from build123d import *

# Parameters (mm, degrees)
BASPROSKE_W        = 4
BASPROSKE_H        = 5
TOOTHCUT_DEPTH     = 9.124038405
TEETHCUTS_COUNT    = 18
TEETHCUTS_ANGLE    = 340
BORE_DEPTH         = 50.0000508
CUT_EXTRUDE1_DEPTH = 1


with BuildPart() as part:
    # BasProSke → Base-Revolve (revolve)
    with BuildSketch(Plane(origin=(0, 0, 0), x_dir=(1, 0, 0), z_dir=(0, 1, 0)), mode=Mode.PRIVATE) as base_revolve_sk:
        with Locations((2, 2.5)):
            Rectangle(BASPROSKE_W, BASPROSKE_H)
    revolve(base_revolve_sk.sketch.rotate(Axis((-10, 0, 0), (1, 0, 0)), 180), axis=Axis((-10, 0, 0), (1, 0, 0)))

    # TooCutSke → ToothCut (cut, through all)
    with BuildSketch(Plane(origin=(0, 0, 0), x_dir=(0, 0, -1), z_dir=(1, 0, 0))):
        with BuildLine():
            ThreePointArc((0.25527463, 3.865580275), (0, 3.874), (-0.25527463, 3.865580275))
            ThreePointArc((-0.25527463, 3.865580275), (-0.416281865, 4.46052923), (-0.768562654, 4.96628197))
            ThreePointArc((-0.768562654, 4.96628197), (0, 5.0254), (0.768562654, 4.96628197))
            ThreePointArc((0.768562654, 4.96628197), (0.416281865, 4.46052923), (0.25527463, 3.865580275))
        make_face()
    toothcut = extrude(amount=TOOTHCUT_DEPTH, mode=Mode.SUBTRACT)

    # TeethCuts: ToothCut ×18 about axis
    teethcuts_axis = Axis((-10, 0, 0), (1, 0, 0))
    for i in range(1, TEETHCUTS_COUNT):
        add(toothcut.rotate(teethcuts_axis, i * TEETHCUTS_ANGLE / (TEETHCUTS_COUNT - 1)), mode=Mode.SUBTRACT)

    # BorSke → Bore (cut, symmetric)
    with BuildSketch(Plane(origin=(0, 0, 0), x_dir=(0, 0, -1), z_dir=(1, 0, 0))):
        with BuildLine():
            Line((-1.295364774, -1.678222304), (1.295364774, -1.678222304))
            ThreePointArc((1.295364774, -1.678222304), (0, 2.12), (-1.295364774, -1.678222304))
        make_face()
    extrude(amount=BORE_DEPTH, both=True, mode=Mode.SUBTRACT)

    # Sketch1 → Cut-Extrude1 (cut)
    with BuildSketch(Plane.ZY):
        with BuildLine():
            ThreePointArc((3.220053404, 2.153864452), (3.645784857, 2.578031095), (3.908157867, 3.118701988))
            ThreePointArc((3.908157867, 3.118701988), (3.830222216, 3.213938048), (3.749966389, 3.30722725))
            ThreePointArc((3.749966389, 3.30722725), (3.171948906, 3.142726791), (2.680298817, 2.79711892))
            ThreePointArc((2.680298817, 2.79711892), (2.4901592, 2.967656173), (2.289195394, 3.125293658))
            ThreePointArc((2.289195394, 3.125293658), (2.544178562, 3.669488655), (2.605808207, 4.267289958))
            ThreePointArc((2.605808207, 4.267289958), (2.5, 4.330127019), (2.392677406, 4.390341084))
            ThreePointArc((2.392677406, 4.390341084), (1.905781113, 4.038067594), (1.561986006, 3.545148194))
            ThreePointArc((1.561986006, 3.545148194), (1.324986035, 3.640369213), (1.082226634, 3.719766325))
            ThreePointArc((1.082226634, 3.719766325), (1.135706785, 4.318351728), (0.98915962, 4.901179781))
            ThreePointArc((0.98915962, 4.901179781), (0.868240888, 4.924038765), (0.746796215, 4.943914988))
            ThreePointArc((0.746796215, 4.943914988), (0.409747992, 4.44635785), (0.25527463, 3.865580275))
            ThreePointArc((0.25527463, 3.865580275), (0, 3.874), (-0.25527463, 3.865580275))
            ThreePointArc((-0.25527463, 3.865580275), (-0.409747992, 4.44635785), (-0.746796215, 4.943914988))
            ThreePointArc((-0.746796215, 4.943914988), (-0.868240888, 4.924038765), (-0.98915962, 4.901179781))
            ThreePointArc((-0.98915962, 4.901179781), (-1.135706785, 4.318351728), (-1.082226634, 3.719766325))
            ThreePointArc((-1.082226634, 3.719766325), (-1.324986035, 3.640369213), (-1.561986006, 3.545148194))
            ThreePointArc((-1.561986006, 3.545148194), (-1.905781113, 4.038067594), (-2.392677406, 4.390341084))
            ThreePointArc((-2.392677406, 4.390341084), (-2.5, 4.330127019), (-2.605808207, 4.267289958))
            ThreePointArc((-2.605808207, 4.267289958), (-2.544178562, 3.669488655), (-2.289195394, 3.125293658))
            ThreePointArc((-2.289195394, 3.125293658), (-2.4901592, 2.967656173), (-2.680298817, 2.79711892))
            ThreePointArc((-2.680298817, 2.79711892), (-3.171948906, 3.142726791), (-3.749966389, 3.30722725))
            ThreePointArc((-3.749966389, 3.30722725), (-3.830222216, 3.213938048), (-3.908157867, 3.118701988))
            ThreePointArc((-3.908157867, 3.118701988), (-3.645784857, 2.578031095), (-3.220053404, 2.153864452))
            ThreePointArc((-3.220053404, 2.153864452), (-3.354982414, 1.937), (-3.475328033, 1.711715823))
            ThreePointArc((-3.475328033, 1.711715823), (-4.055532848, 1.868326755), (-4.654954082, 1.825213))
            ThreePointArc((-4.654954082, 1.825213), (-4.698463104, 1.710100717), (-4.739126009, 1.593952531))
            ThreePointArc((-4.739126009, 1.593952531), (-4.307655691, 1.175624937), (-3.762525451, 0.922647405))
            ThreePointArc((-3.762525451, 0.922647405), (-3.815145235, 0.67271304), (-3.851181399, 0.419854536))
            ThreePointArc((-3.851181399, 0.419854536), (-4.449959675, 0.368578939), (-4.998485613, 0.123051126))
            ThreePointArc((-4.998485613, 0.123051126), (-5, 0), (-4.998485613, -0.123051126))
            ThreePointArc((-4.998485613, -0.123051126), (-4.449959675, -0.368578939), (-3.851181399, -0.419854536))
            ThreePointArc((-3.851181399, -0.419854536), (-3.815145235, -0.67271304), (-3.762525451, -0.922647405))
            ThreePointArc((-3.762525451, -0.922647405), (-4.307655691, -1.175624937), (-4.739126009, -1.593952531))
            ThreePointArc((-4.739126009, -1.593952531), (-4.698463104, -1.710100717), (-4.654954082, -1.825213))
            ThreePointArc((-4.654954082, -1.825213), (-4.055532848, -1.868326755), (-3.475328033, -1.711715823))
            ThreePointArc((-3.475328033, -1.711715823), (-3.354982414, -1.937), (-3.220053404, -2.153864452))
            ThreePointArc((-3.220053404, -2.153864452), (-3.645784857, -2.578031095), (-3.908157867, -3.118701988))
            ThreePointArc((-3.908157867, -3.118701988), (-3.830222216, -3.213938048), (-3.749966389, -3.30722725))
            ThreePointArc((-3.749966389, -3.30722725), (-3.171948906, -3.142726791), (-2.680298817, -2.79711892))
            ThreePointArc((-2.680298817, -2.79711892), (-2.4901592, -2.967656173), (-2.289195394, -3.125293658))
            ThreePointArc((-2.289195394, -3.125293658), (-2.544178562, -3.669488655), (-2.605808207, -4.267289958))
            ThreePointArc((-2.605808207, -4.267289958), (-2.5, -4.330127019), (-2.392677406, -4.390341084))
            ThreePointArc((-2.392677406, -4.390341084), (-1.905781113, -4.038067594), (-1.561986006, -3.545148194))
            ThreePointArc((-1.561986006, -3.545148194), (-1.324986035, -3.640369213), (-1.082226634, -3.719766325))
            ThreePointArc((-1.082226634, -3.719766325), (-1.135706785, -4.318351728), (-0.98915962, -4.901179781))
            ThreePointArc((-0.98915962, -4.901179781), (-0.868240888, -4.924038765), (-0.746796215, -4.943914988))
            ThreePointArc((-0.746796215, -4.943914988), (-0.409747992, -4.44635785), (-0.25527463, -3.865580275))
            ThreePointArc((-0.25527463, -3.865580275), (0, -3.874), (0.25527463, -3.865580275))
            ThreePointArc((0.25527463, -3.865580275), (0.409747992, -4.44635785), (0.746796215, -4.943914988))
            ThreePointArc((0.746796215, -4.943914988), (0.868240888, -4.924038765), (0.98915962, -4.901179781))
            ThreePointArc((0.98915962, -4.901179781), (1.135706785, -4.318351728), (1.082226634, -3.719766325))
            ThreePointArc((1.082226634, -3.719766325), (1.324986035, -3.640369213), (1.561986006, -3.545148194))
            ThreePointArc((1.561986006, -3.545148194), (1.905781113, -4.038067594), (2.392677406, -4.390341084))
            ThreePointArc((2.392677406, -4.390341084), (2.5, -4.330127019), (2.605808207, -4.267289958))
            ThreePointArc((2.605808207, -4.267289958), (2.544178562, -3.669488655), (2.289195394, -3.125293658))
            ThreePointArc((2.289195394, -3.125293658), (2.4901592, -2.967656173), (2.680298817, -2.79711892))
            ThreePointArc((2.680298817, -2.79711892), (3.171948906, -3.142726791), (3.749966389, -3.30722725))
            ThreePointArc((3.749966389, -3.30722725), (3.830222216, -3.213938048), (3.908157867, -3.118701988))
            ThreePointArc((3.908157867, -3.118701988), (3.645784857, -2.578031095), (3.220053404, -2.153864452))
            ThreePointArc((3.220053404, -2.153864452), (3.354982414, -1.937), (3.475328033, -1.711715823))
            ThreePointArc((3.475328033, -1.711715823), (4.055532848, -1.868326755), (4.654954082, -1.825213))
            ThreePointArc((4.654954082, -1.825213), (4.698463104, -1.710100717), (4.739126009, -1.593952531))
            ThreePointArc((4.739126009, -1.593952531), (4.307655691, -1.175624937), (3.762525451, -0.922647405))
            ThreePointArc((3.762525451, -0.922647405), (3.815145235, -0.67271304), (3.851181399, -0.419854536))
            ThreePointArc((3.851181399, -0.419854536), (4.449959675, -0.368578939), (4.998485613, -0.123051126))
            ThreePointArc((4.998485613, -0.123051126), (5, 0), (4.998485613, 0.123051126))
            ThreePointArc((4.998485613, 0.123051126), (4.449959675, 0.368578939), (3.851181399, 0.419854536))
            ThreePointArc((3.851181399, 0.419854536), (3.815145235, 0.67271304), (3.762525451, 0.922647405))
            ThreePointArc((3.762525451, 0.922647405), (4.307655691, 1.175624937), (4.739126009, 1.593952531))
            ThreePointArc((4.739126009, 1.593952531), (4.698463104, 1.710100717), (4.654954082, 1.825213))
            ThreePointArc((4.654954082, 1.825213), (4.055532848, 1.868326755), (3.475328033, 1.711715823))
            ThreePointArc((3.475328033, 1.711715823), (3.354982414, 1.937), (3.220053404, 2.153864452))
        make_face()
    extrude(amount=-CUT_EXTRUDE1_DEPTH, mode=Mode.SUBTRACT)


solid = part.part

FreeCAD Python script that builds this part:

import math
import FreeCAD as App
import Part
import Sketcher
Q = App.Units.Quantity

doc = App.newDocument("Part")
params = doc.addObject("Spreadsheet::Sheet", "Params")
for row, (alias, value) in enumerate([
    ("sketch1_width", "4 mm"),
    ("sketch1_height", "5 mm"),
    ("revolution_angle", "360 deg"),
    ("sketch2_radius", "1.8 mm"),
    ("sketch3_radius", "2.12 mm"),
    ("pocket2_length", "100.000102 mm"),
    ("sketch4_radius", "5.000001 mm"),
    ("sketch4_radius2", "1.8 mm"),
    ("pocket3_length", "1 mm"),
], start=1):
    params.set(f"A{row}", alias)
    params.set(f"B{row}", "=" + value)
    params.setAlias(f"B{row}", alias)

body = doc.addObject("PartDesign::Body", "Body")

sketch1 = body.newObject("Sketcher::SketchObject", "Sketch")
sketch1.AttachmentSupport = (doc.getObject("XZ_Plane"), [""])
sketch1.MapMode = "FlatFace"
sketch1.addGeometry([
    Part.LineSegment(App.Vector(0, -5, 0), App.Vector(0, 0, 0)),
    Part.LineSegment(App.Vector(0, 0, 0), App.Vector(4, 0, 0)),
    Part.LineSegment(App.Vector(4, 0, 0), App.Vector(4, -5, 0)),
    Part.LineSegment(App.Vector(4, -5, 0), App.Vector(0, -5, 0)),
], False)
sketch1.addConstraint([
    Sketcher.Constraint("Coincident", 0, 2, 1, 1),
    Sketcher.Constraint("Coincident", 1, 2, 2, 1),
    Sketcher.Constraint("Coincident", 2, 2, 3, 1),
    Sketcher.Constraint("Coincident", 3, 2, 0, 1),
    Sketcher.Constraint("Vertical", 0),
    Sketcher.Constraint("Horizontal", 1),
    Sketcher.Constraint("Vertical", 2),
    Sketcher.Constraint("Horizontal", 3),
    Sketcher.Constraint("Coincident", 0, 2, -1, 1),
    Sketcher.Constraint("DistanceX", 1, 1, 1, 2, Q("4 mm")),
    Sketcher.Constraint("DistanceY", 0, 1, 0, 2, Q("5 mm")),
])
sketch1.setExpression("Constraints[9]", "Params.sketch1_width")
sketch1.setExpression("Constraints[10]", "Params.sketch1_height")
revolution = body.newObject("PartDesign::Revolution", "Revolution")
revolution.Profile = sketch1
revolution.ReferenceAxis = (sketch1, ["H_Axis"])
revolution.setExpression("Angle", "Params.revolution_angle")

sketch2 = body.newObject("Sketcher::SketchObject", "Sketch001")
sketch2.AttachmentSupport = (doc.getObject("YZ_Plane"), [""])
sketch2.MapMode = "FlatFace"
sketch2.addGeometry([
    Part.ArcOfCircle(Part.Circle(App.Vector(0, 0, 0), App.Vector(0, 0, 1), 3.9), math.radians(-3.78), math.radians(3.78)),
    Part.ArcOfCircle(Part.Circle(App.Vector(3.7, -2, 0), App.Vector(0, 0, 1), 1.8), math.radians(45), math.radians(85)),
    Part.ArcOfCircle(Part.Circle(App.Vector(0, 0, 0), App.Vector(0, 0, 1), 5), math.radians(-8.8), math.radians(8.8)),
    Part.ArcOfCircle(Part.Circle(App.Vector(3.7, 2, 0), App.Vector(0, 0, 1), 1.8), math.radians(-85), math.radians(-45)),
], False)
sketch2.addConstraint([
    Sketcher.Constraint("Coincident", 0, 1, 1, 2),
    Sketcher.Constraint("Coincident", 1, 1, 2, 1),
    Sketcher.Constraint("Coincident", 2, 2, 3, 2),
    Sketcher.Constraint("Coincident", 3, 1, 0, 2),
    Sketcher.Constraint("Coincident", 0, 3, -1, 1),
    Sketcher.Constraint("Coincident", 2, 3, -1, 1),
    Sketcher.Constraint("Equal", 1, 3),
    Sketcher.Constraint("Symmetric", 1, 3, 3, 3, -1),
    Sketcher.Constraint("Radius", 1, Q("1.8 mm")),
    Sketcher.Constraint("Radius", 0, Q("3.874 mm")),
    Sketcher.Constraint("Radius", 2, Q("5.0254 mm")),
    Sketcher.Constraint("DistanceX", 0, 1, 1, 1, Q("1.100702 mm")),
    Sketcher.Constraint("DistanceX", -1, 1, 1, 3, Q("3.699789 mm")),
])
sketch2.setExpression("Constraints[8]", "Params.sketch2_radius")
pocket1 = body.newObject("PartDesign::Pocket", "Pocket")
pocket1.Profile = sketch2
pocket1.Type = "ThroughAll"
pocket1.Reversed = True
doc.recompute()

polarpattern = body.newObject("PartDesign::PolarPattern", "PolarPattern")
polarpattern.Originals = [pocket1]
polarpattern.Axis = (doc.getObject("X_Axis"), [""])
polarpattern.Angle = 360
polarpattern.Occurrences = 18
body.Tip = polarpattern

sketch3 = body.newObject("Sketcher::SketchObject", "Sketch002")
sketch3.AttachmentSupport = (doc.getObject("YZ_Plane"), [""])
sketch3.MapMode = "FlatFace"
sketch3.addGeometry([
    Part.LineSegment(App.Vector(-1.7, 1.3, 0), App.Vector(-1.7, -1.3, 0)),
    Part.ArcOfCircle(Part.Circle(App.Vector(0, 0, 0), App.Vector(0, 0, 1), 2.1), math.radians(-142), math.radians(142)),
], False)
sketch3.addConstraint([
    Sketcher.Constraint("Coincident", 0, 1, 1, 2),
    Sketcher.Constraint("Coincident", 1, 1, 0, 2),
    Sketcher.Constraint("Vertical", 0),
    Sketcher.Constraint("Coincident", 1, 3, -1, 1),
    Sketcher.Constraint("Radius", 1, Q("2.12 mm")),
    Sketcher.Constraint("DistanceY", 0, 2, 0, 1, Q("2.59073 mm")),
])
sketch3.setExpression("Constraints[4]", "Params.sketch3_radius")
pocket2 = body.newObject("PartDesign::Pocket", "Pocket001")
pocket2.Profile = sketch3
pocket2.setExpression("Length", "Params.pocket2_length")
pocket2.Midplane = True

sketch4 = body.newObject("Sketcher::SketchObject", "Sketch003")
sketch4.AttachmentSupport = (doc.getObject("YZ_Plane"), [""])
sketch4.MapMode = "FlatFace"
sketch4.addGeometry([
    Part.ArcOfCircle(Part.Circle(App.Vector(3.62, 2.18, 0), App.Vector(0, 0, 1), 1.8), math.radians(106), math.radians(145)),
    Part.ArcOfCircle(Part.Circle(App.Vector(0, 0, 0), App.Vector(0, 0, 1), 5), math.radians(48.59), math.radians(51.41)),
    Part.ArcOfCircle(Part.Circle(App.Vector(1.52, 3.95, 0), App.Vector(0, 0, 1), 1.8), math.radians(-45), math.radians(-6)),
    Part.ArcOfCircle(Part.Circle(App.Vector(0, 0, 0), App.Vector(0, 0, 1), 3.87), math.radians(36.22), math.radians(43.78)),
    Part.ArcOfCircle(Part.Circle(App.Vector(4.15, 0.81, 0), App.Vector(0, 0, 1), 1.8), math.radians(86), math.radians(125)),
    Part.ArcOfCircle(Part.Circle(App.Vector(0, 0, 0), App.Vector(0, 0, 1), 5), math.radians(28.59), math.radians(31.41)),
    Part.ArcOfCircle(Part.Circle(App.Vector(2.78, 3.19, 0), App.Vector(0, 0, 1), 1.8), math.radians(-65), math.radians(-26)),
    Part.ArcOfCircle(Part.Circle(App.Vector(0, 0, 0), App.Vector(0, 0, 1), 3.87), math.radians(16.22), math.radians(23.78)),
    Part.ArcOfCircle(Part.Circle(App.Vector(4.18, -0.66, 0), App.Vector(0, 0, 1), 1.8), math.radians(66), math.radians(105)),
    Part.ArcOfCircle(Part.Circle(App.Vector(0, 0, 0), App.Vector(0, 0, 1), 5), math.radians(8.59), math.radians(11.41)),
    Part.ArcOfCircle(Part.Circle(App.Vector(3.7, 2.05, 0), App.Vector(0, 0, 1), 1.8), math.radians(-85), math.radians(-46)),
    Part.ArcOfCircle(Part.Circle(App.Vector(0, 0, 0), App.Vector(0, 0, 1), 3.87), math.radians(-3.78), math.radians(3.78)),
    Part.ArcOfCircle(Part.Circle(App.Vector(3.7, -2.05, 0), App.Vector(0, 0, 1), 1.8), math.radians(46), math.radians(85)),
    Part.ArcOfCircle(Part.Circle(App.Vector(0, 0, 0), App.Vector(0, 0, 1), 5), math.radians(-11.41), math.radians(-8.59)),
    Part.ArcOfCircle(Part.Circle(App.Vector(4.18, 0.66, 0), App.Vector(0, 0, 1), 1.8), math.radians(-105), math.radians(-66)),
    Part.ArcOfCircle(Part.Circle(App.Vector(0, 0, 0), App.Vector(0, 0, 1), 3.87), math.radians(-23.78), math.radians(-16.22)),
    Part.ArcOfCircle(Part.Circle(App.Vector(2.78, -3.19, 0), App.Vector(0, 0, 1), 1.8), math.radians(26), math.radians(65)),
    Part.ArcOfCircle(Part.Circle(App.Vector(0, 0, 0), App.Vector(0, 0, 1), 5), math.radians(-31.41), math.radians(-28.59)),
    Part.ArcOfCircle(Part.Circle(App.Vector(4.15, -0.81, 0), App.Vector(0, 0, 1), 1.8), math.radians(-125), math.radians(-86)),
    Part.ArcOfCircle(Part.Circle(App.Vector(0, 0, 0), App.Vector(0, 0, 1), 3.87), math.radians(-43.78), math.radians(-36.22)),
    Part.ArcOfCircle(Part.Circle(App.Vector(1.52, -3.95, 0), App.Vector(0, 0, 1), 1.8), math.radians(6), math.radians(45)),
    Part.ArcOfCircle(Part.Circle(App.Vector(0, 0, 0), App.Vector(0, 0, 1), 5), math.radians(-51.41), math.radians(-48.59)),
    Part.ArcOfCircle(Part.Circle(App.Vector(3.62, -2.18, 0), App.Vector(0, 0, 1), 1.8), math.radians(-145), math.radians(-106)),
    Part.ArcOfCircle(Part.Circle(App.Vector(0, 0, 0), App.Vector(0, 0, 1), 3.87), math.radians(-63.78), math.radians(-56.22)),
    Part.ArcOfCircle(Part.Circle(App.Vector(0.08, -4.23, 0), App.Vector(0, 0, 1), 1.8), math.radians(-14), math.radians(25)),
    Part.ArcOfCircle(Part.Circle(App.Vector(0, 0, 0), App.Vector(0, 0, 1), 5), math.radians(-71.41), math.radians(-68.59)),
    Part.ArcOfCircle(Part.Circle(App.Vector(2.66, -3.29, 0), App.Vector(0, 0, 1), 1.8), math.radians(-165), math.radians(-126)),
    Part.ArcOfCircle(Part.Circle(App.Vector(0, 0, 0), App.Vector(0, 0, 1), 3.87), math.radians(-83.78), math.radians(-76.22)),
    Part.ArcOfCircle(Part.Circle(App.Vector(-1.37, -4, 0), App.Vector(0, 0, 1), 1.8), math.radians(-34), math.radians(5)),
    Part.ArcOfCircle(Part.Circle(App.Vector(0, 0, 0), App.Vector(0, 0, 1), 5), math.radians(-91.41), math.radians(-88.59)),
    Part.ArcOfCircle(Part.Circle(App.Vector(1.37, -4, 0), App.Vector(0, 0, 1), 1.8), math.radians(175), math.radians(214)),
    Part.ArcOfCircle(Part.Circle(App.Vector(0, 0, 0), App.Vector(0, 0, 1), 3.87), math.radians(-103.78), math.radians(-96.22)),
    Part.ArcOfCircle(Part.Circle(App.Vector(-2.66, -3.29, 0), App.Vector(0, 0, 1), 1.8), math.radians(-54), math.radians(-15)),
    Part.ArcOfCircle(Part.Circle(App.Vector(0, 0, 0), App.Vector(0, 0, 1), 5), math.radians(-111.41), math.radians(-108.59)),
    Part.ArcOfCircle(Part.Circle(App.Vector(-0.08, -4.23, 0), App.Vector(0, 0, 1), 1.8), math.radians(155), math.radians(194)),
    Part.ArcOfCircle(Part.Circle(App.Vector(0, 0, 0), App.Vector(0, 0, 1), 3.87), math.radians(-123.78), math.radians(-116.22)),
    Part.ArcOfCircle(Part.Circle(App.Vector(-3.62, -2.18, 0), App.Vector(0, 0, 1), 1.8), math.radians(-74), math.radians(-35)),
    Part.ArcOfCircle(Part.Circle(App.Vector(0, 0, 0), App.Vector(0, 0, 1), 5), math.radians(-131.41), math.radians(-128.59)),
    Part.ArcOfCircle(Part.Circle(App.Vector(-1.52, -3.95, 0), App.Vector(0, 0, 1), 1.8), math.radians(135), math.radians(174)),
    Part.ArcOfCircle(Part.Circle(App.Vector(0, 0, 0), App.Vector(0, 0, 1), 3.87), math.radians(-143.78), math.radians(-136.22)),
    Part.ArcOfCircle(Part.Circle(App.Vector(-4.15, -0.81, 0), App.Vector(0, 0, 1), 1.8), math.radians(-94), math.radians(-55)),
    Part.ArcOfCircle(Part.Circle(App.Vector(0, 0, 0), App.Vector(0, 0, 1), 5), math.radians(-151.41), math.radians(-148.59)),
    Part.ArcOfCircle(Part.Circle(App.Vector(-2.78, -3.19, 0), App.Vector(0, 0, 1), 1.8), math.radians(115), math.radians(154)),
    Part.ArcOfCircle(Part.Circle(App.Vector(0, 0, 0), App.Vector(0, 0, 1), 3.87), math.radians(-163.78), math.radians(-156.22)),
    Part.ArcOfCircle(Part.Circle(App.Vector(-4.18, 0.66, 0), App.Vector(0, 0, 1), 1.8), math.radians(-114), math.radians(-75)),
    Part.ArcOfCircle(Part.Circle(App.Vector(0, 0, 0), App.Vector(0, 0, 1), 5), math.radians(-171.41), math.radians(-168.59)),
    Part.ArcOfCircle(Part.Circle(App.Vector(-3.7, -2.05, 0), App.Vector(0, 0, 1), 1.8), math.radians(95), math.radians(134)),
    Part.ArcOfCircle(Part.Circle(App.Vector(0, 0, 0), App.Vector(0, 0, 1), 3.87), math.radians(176.22), math.radians(183.78)),
    Part.ArcOfCircle(Part.Circle(App.Vector(-3.7, 2.05, 0), App.Vector(0, 0, 1), 1.8), math.radians(-134), math.radians(-95)),
    Part.ArcOfCircle(Part.Circle(App.Vector(0, 0, 0), App.Vector(0, 0, 1), 5), math.radians(168.59), math.radians(171.41)),
    Part.ArcOfCircle(Part.Circle(App.Vector(-4.18, -0.66, 0), App.Vector(0, 0, 1), 1.8), math.radians(75), math.radians(114)),
    Part.ArcOfCircle(Part.Circle(App.Vector(0, 0, 0), App.Vector(0, 0, 1), 3.87), math.radians(156.22), math.radians(163.78)),
    Part.ArcOfCircle(Part.Circle(App.Vector(-2.78, 3.19, 0), App.Vector(0, 0, 1), 1.8), math.radians(-154), math.radians(-115)),
    Part.ArcOfCircle(Part.Circle(App.Vector(0, 0, 0), App.Vector(0, 0, 1), 5), math.radians(148.59), math.radians(151.41)),
    Part.ArcOfCircle(Part.Circle(App.Vector(-4.15, 0.81, 0), App.Vector(0, 0, 1), 1.8), math.radians(55), math.radians(94)),
    Part.ArcOfCircle(Part.Circle(App.Vector(0, 0, 0), App.Vector(0, 0, 1), 3.87), math.radians(136.22), math.radians(143.78)),
    Part.ArcOfCircle(Part.Circle(App.Vector(-1.52, 3.95, 0), App.Vector(0, 0, 1), 1.8), math.radians(-174), math.radians(-135)),
    Part.ArcOfCircle(Part.Circle(App.Vector(0, 0, 0), App.Vector(0, 0, 1), 5), math.radians(128.59), math.radians(131.41)),
    Part.ArcOfCircle(Part.Circle(App.Vector(-3.62, 2.18, 0), App.Vector(0, 0, 1), 1.8), math.radians(35), math.radians(74)),
    Part.ArcOfCircle(Part.Circle(App.Vector(0, 0, 0), App.Vector(0, 0, 1), 3.87), math.radians(116.22), math.radians(123.78)),
    Part.ArcOfCircle(Part.Circle(App.Vector(-0.08, 4.23, 0), App.Vector(0, 0, 1), 1.8), math.radians(166), math.radians(205)),
    Part.ArcOfCircle(Part.Circle(App.Vector(0, 0, 0), App.Vector(0, 0, 1), 5), math.radians(108.59), math.radians(111.41)),
    Part.ArcOfCircle(Part.Circle(App.Vector(-2.66, 3.29, 0), App.Vector(0, 0, 1), 1.8), math.radians(15), math.radians(54)),
    Part.ArcOfCircle(Part.Circle(App.Vector(0, 0, 0), App.Vector(0, 0, 1), 3.87), math.radians(96.22), math.radians(103.78)),
    Part.ArcOfCircle(Part.Circle(App.Vector(1.37, 4, 0), App.Vector(0, 0, 1), 1.8), math.radians(146), math.radians(185)),
    Part.ArcOfCircle(Part.Circle(App.Vector(0, 0, 0), App.Vector(0, 0, 1), 5), math.radians(88.59), math.radians(91.41)),
    Part.ArcOfCircle(Part.Circle(App.Vector(-1.37, 4, 0), App.Vector(0, 0, 1), 1.8), math.radians(-5), math.radians(34)),
    Part.ArcOfCircle(Part.Circle(App.Vector(0, 0, 0), App.Vector(0, 0, 1), 3.87), math.radians(76.22), math.radians(83.78)),
    Part.ArcOfCircle(Part.Circle(App.Vector(2.66, 3.29, 0), App.Vector(0, 0, 1), 1.8), math.radians(126), math.radians(165)),
    Part.ArcOfCircle(Part.Circle(App.Vector(0, 0, 0), App.Vector(0, 0, 1), 5), math.radians(68.59), math.radians(71.41)),
    Part.ArcOfCircle(Part.Circle(App.Vector(0.08, 4.23, 0), App.Vector(0, 0, 1), 1.8), math.radians(-25), math.radians(14)),
    Part.ArcOfCircle(Part.Circle(App.Vector(0, 0, 0), App.Vector(0, 0, 1), 3.87), math.radians(56.22), math.radians(63.78)),
], False)
sketch4.addConstraint([
    Sketcher.Constraint("Coincident", 0, 1, 1, 2),
    Sketcher.Constraint("Coincident", 1, 1, 2, 2),
    Sketcher.Constraint("Coincident", 2, 1, 3, 2),
    Sketcher.Constraint("Coincident", 3, 1, 4, 2),
    Sketcher.Constraint("Coincident", 4, 1, 5, 2),
    Sketcher.Constraint("Coincident", 5, 1, 6, 2),
    Sketcher.Constraint("Coincident", 6, 1, 7, 2),
    Sketcher.Constraint("Coincident", 7, 1, 8, 2),
    Sketcher.Constraint("Coincident", 8, 1, 9, 2),
    Sketcher.Constraint("Coincident", 9, 1, 10, 2),
    Sketcher.Constraint("Coincident", 10, 1, 11, 2),
    Sketcher.Constraint("Coincident", 11, 1, 12, 2),
    Sketcher.Constraint("Coincident", 12, 1, 13, 2),
    Sketcher.Constraint("Coincident", 13, 1, 14, 2),
    Sketcher.Constraint("Coincident", 14, 1, 15, 2),
    Sketcher.Constraint("Coincident", 15, 1, 16, 2),
    Sketcher.Constraint("Coincident", 16, 1, 17, 2),
    Sketcher.Constraint("Coincident", 17, 1, 18, 2),
    Sketcher.Constraint("Coincident", 18, 1, 19, 2),
    Sketcher.Constraint("Coincident", 19, 1, 20, 2),
    Sketcher.Constraint("Coincident", 20, 1, 21, 2),
    Sketcher.Constraint("Coincident", 21, 1, 22, 2),
    Sketcher.Constraint("Coincident", 22, 1, 23, 2),
    Sketcher.Constraint("Coincident", 23, 1, 24, 2),
    Sketcher.Constraint("Coincident", 24, 1, 25, 2),
    Sketcher.Constraint("Coincident", 25, 1, 26, 2),
    Sketcher.Constraint("Coincident", 26, 1, 27, 2),
    Sketcher.Constraint("Coincident", 27, 1, 28, 2),
    Sketcher.Constraint("Coincident", 28, 1, 29, 2),
    Sketcher.Constraint("Coincident", 29, 1, 30, 2),
    Sketcher.Constraint("Coincident", 30, 1, 31, 2),
    Sketcher.Constraint("Coincident", 31, 1, 32, 2),
    Sketcher.Constraint("Coincident", 32, 1, 33, 2),
    Sketcher.Constraint("Coincident", 33, 1, 34, 2),
    Sketcher.Constraint("Coincident", 34, 1, 35, 2),
    Sketcher.Constraint("Coincident", 35, 1, 36, 2),
    Sketcher.Constraint("Coincident", 36, 1, 37, 2),
    Sketcher.Constraint("Coincident", 37, 1, 38, 2),
    Sketcher.Constraint("Coincident", 38, 1, 39, 2),
    Sketcher.Constraint("Coincident", 39, 1, 40, 2),
    Sketcher.Constraint("Coincident", 40, 1, 41, 2),
    Sketcher.Constraint("Coincident", 41, 1, 42, 2),
    Sketcher.Constraint("Coincident", 42, 1, 43, 2),
    Sketcher.Constraint("Coincident", 43, 1, 44, 2),
    Sketcher.Constraint("Coincident", 44, 1, 45, 2),
    Sketcher.Constraint("Coincident", 45, 1, 46, 2),
    Sketcher.Constraint("Coincident", 46, 1, 47, 2),
    Sketcher.Constraint("Coincident", 47, 1, 48, 2),
    Sketcher.Constraint("Coincident", 48, 1, 49, 2),
    Sketcher.Constraint("Coincident", 49, 1, 50, 2),
    Sketcher.Constraint("Coincident", 50, 1, 51, 2),
    Sketcher.Constraint("Coincident", 51, 1, 52, 2),
    Sketcher.Constraint("Coincident", 52, 1, 53, 2),
    Sketcher.Constraint("Coincident", 53, 1, 54, 2),
    Sketcher.Constraint("Coincident", 54, 1, 55, 2),
    Sketcher.Constraint("Coincident", 55, 1, 56, 2),
    Sketcher.Constraint("Coincident", 56, 1, 57, 2),
    Sketcher.Constraint("Coincident", 57, 1, 58, 2),
    Sketcher.Constraint("Coincident", 58, 1, 59, 2),
    Sketcher.Constraint("Coincident", 59, 1, 60, 2),
    Sketcher.Constraint("Coincident", 60, 1, 61, 2),
    Sketcher.Constraint("Coincident", 61, 1, 62, 2),
    Sketcher.Constraint("Coincident", 62, 1, 63, 2),
    Sketcher.Constraint("Coincident", 63, 1, 64, 2),
    Sketcher.Constraint("Coincident", 64, 1, 65, 2),
    Sketcher.Constraint("Coincident", 65, 1, 66, 2),
    Sketcher.Constraint("Coincident", 66, 1, 67, 2),
    Sketcher.Constraint("Coincident", 67, 1, 68, 2),
    Sketcher.Constraint("Coincident", 68, 1, 69, 2),
    Sketcher.Constraint("Coincident", 69, 1, 70, 2),
    Sketcher.Constraint("Coincident", 70, 1, 71, 2),
    Sketcher.Constraint("Coincident", 71, 1, 0, 2),
    Sketcher.Constraint("Coincident", 1, 3, -1, 1),
    Sketcher.Constraint("Coincident", 3, 3, -1, 1),
    Sketcher.Constraint("Coincident", 5, 3, -1, 1),
    Sketcher.Constraint("Coincident", 7, 3, -1, 1),
    Sketcher.Constraint("Coincident", 9, 3, -1, 1),
    Sketcher.Constraint("Coincident", 11, 3, -1, 1),
    Sketcher.Constraint("Coincident", 13, 3, -1, 1),
    Sketcher.Constraint("Coincident", 15, 3, -1, 1),
    Sketcher.Constraint("Coincident", 17, 3, -1, 1),
    Sketcher.Constraint("Coincident", 19, 3, -1, 1),
    Sketcher.Constraint("Coincident", 21, 3, -1, 1),
    Sketcher.Constraint("Coincident", 23, 3, -1, 1),
    Sketcher.Constraint("Coincident", 25, 3, -1, 1),
    Sketcher.Constraint("Coincident", 27, 3, -1, 1),
    Sketcher.Constraint("Coincident", 29, 3, -1, 1),
    Sketcher.Constraint("Coincident", 31, 3, -1, 1),
    Sketcher.Constraint("Coincident", 33, 3, -1, 1),
    Sketcher.Constraint("Coincident", 35, 3, -1, 1),
    Sketcher.Constraint("Coincident", 37, 3, -1, 1),
    Sketcher.Constraint("Coincident", 39, 3, -1, 1),
    Sketcher.Constraint("Coincident", 41, 3, -1, 1),
    Sketcher.Constraint("Coincident", 43, 3, -1, 1),
    Sketcher.Constraint("Coincident", 45, 3, -1, 1),
    Sketcher.Constraint("Coincident", 47, 3, -1, 1),
    Sketcher.Constraint("Coincident", 49, 3, -1, 1),
    Sketcher.Constraint("Coincident", 51, 3, -1, 1),
    Sketcher.Constraint("Coincident", 53, 3, -1, 1),
    Sketcher.Constraint("Coincident", 55, 3, -1, 1),
    Sketcher.Constraint("Coincident", 57, 3, -1, 1),
    Sketcher.Constraint("Coincident", 59, 3, -1, 1),
    Sketcher.Constraint("Coincident", 61, 3, -1, 1),
    Sketcher.Constraint("Coincident", 63, 3, -1, 1),
    Sketcher.Constraint("Coincident", 65, 3, -1, 1),
    Sketcher.Constraint("Coincident", 67, 3, -1, 1),
    Sketcher.Constraint("Coincident", 69, 3, -1, 1),
    Sketcher.Constraint("Coincident", 71, 3, -1, 1),
    Sketcher.Constraint("Equal", 0, 2),
    Sketcher.Constraint("Equal", 2, 4),
    Sketcher.Constraint("Equal", 1, 5),
    Sketcher.Constraint("Equal", 4, 6),
    Sketcher.Constraint("Equal", 3, 7),
    Sketcher.Constraint("Equal", 6, 8),
    Sketcher.Constraint("Equal", 5, 9),
    Sketcher.Constraint("Equal", 8, 10),
    Sketcher.Constraint("Equal", 7, 11),
    Sketcher.Constraint("Equal", 10, 12),
    Sketcher.Constraint("Equal", 9, 13),
    Sketcher.Constraint("Equal", 12, 14),
    Sketcher.Constraint("Equal", 11, 15),
    Sketcher.Constraint("Equal", 14, 16),
    Sketcher.Constraint("Equal", 13, 17),
    Sketcher.Constraint("Equal", 16, 18),
    Sketcher.Constraint("Equal", 15, 19),
    Sketcher.Constraint("Equal", 18, 20),
    Sketcher.Constraint("Equal", 17, 21),
    Sketcher.Constraint("Equal", 20, 22),
    Sketcher.Constraint("Equal", 19, 23),
    Sketcher.Constraint("Equal", 22, 24),
    Sketcher.Constraint("Equal", 21, 25),
    Sketcher.Constraint("Equal", 24, 26),
    Sketcher.Constraint("Equal", 23, 27),
    Sketcher.Constraint("Equal", 26, 28),
    Sketcher.Constraint("Equal", 25, 29),
    Sketcher.Constraint("Equal", 28, 30),
    Sketcher.Constraint("Equal", 27, 31),
    Sketcher.Constraint("Equal", 30, 32),
    Sketcher.Constraint("Equal", 29, 33),
    Sketcher.Constraint("Equal", 32, 34),
    Sketcher.Constraint("Equal", 31, 35),
    Sketcher.Constraint("Equal", 34, 36),
    Sketcher.Constraint("Equal", 33, 37),
    Sketcher.Constraint("Equal", 36, 38),
    Sketcher.Constraint("Equal", 35, 39),
    Sketcher.Constraint("Equal", 38, 40),
    Sketcher.Constraint("Equal", 37, 41),
    Sketcher.Constraint("Equal", 40, 42),
    Sketcher.Constraint("Equal", 39, 43),
    Sketcher.Constraint("Equal", 42, 44),
    Sketcher.Constraint("Equal", 41, 45),
    Sketcher.Constraint("Equal", 44, 46),
    Sketcher.Constraint("Equal", 43, 47),
    Sketcher.Constraint("Equal", 46, 48),
    Sketcher.Constraint("Equal", 45, 49),
    Sketcher.Constraint("Equal", 48, 50),
    Sketcher.Constraint("Equal", 47, 51),
    Sketcher.Constraint("Equal", 50, 52),
    Sketcher.Constraint("Equal", 49, 53),
    Sketcher.Constraint("Equal", 52, 54),
    Sketcher.Constraint("Equal", 51, 55),
    Sketcher.Constraint("Equal", 54, 56),
    Sketcher.Constraint("Equal", 53, 57),
    Sketcher.Constraint("Equal", 56, 58),
    Sketcher.Constraint("Equal", 55, 59),
    Sketcher.Constraint("Equal", 58, 60),
    Sketcher.Constraint("Equal", 57, 61),
    Sketcher.Constraint("Equal", 60, 62),
    Sketcher.Constraint("Equal", 59, 63),
    Sketcher.Constraint("Equal", 62, 64),
    Sketcher.Constraint("Equal", 61, 65),
    Sketcher.Constraint("Equal", 64, 66),
    Sketcher.Constraint("Equal", 63, 67),
    Sketcher.Constraint("Equal", 66, 68),
    Sketcher.Constraint("Equal", 65, 69),
    Sketcher.Constraint("Equal", 68, 70),
    Sketcher.Constraint("Equal", 67, 71),
    Sketcher.Constraint("Symmetric", 0, 3, 36, 3, -1, 1),
    Sketcher.Constraint("Symmetric", 2, 3, 38, 3, -1, 1),
    Sketcher.Constraint("Symmetric", 4, 3, 40, 3, -1, 1),
    Sketcher.Constraint("Symmetric", 6, 3, 42, 3, -1, 1),
    Sketcher.Constraint("Symmetric", 8, 3, 44, 3, -1, 1),
    Sketcher.Constraint("Symmetric", 10, 3, 46, 3, -1, 1),
    Sketcher.Constraint("Symmetric", 12, 3, 48, 3, -1, 1),
    Sketcher.Constraint("Symmetric", 14, 3, 50, 3, -1, 1),
    Sketcher.Constraint("Symmetric", 16, 3, 52, 3, -1, 1),
    Sketcher.Constraint("Symmetric", 18, 3, 54, 3, -1, 1),
    Sketcher.Constraint("Symmetric", 20, 3, 56, 3, -1, 1),
    Sketcher.Constraint("Symmetric", 22, 3, 58, 3, -1, 1),
    Sketcher.Constraint("Symmetric", 24, 3, 60, 3, -1, 1),
    Sketcher.Constraint("Symmetric", 26, 3, 62, 3, -1, 1),
    Sketcher.Constraint("Symmetric", 28, 3, 64, 3, -1, 1),
    Sketcher.Constraint("Symmetric", 30, 3, 66, 3, -1, 1),
    Sketcher.Constraint("Symmetric", 32, 3, 68, 3, -1, 1),
    Sketcher.Constraint("Symmetric", 34, 3, 70, 3, -1, 1),
    Sketcher.Constraint("Symmetric", 28, 3, 30, 3, -2),
    Sketcher.Constraint("Symmetric", 26, 3, 32, 3, -2),
    Sketcher.Constraint("Symmetric", 24, 3, 34, 3, -2),
    Sketcher.Constraint("Symmetric", 22, 3, 36, 3, -2),
    Sketcher.Constraint("Symmetric", 20, 3, 38, 3, -2),
    Sketcher.Constraint("Symmetric", 18, 3, 40, 3, -2),
    Sketcher.Constraint("Symmetric", 16, 3, 42, 3, -2),
    Sketcher.Constraint("Symmetric", 14, 3, 44, 3, -2),
    Sketcher.Constraint("Symmetric", 12, 3, 46, 3, -2),
    Sketcher.Constraint("Radius", 1, Q("5.000001 mm")),
    Sketcher.Constraint("Radius", 0, Q("1.8 mm")),
    Sketcher.Constraint("Radius", 3, Q("3.874 mm")),
    Sketcher.Constraint("DistanceY", -1, 1, 0, 3, Q("2.1803 mm")),
    Sketcher.Constraint("DistanceX", -1, 1, 24, 3, Q("0.076601 mm")),
    Sketcher.Constraint("DistanceX", -1, 1, 0, 1, Q("3.118702 mm")),
    Sketcher.Constraint("DistanceY", -1, 1, 2, 1, Q("2.680299 mm")),
    Sketcher.Constraint("DistanceY", -1, 1, 2, 3, Q("3.946749 mm")),
    Sketcher.Constraint("DistanceX", -1, 1, 4, 3, Q("4.15039 mm")),
    Sketcher.Constraint("DistanceY", -1, 1, 4, 3, Q("0.809608 mm")),
    Sketcher.Constraint("DistanceY", -1, 1, 6, 3, Q("3.189539 mm")),
    Sketcher.Constraint("DistanceX", -1, 1, 10, 3, Q("3.699789 mm")),
    Sketcher.Constraint("DistanceX", -1, 1, 5, 1, Q("4.390341 mm")),
    Sketcher.Constraint("DistanceX", -1, 1, 8, 1, Q("4.90118 mm")),
    Sketcher.Constraint("DistanceX", -1, 1, 10, 1, Q("3.86558 mm")),
    Sketcher.Constraint("DistanceY", 23, 1, -1, 1, Q("3.475328 mm")),
    Sketcher.Constraint("DistanceY", 27, 1, -1, 1, Q("3.851181 mm")),
    Sketcher.Constraint("DistanceX", -1, 1, 28, 1, Q("0.123051 mm")),
    Sketcher.Constraint("DistanceX", -1, 1, 8, 3, Q("4.176993 mm")),
    Sketcher.Constraint("DistanceX", -1, 1, 26, 3, Q("2.658977 mm")),
    Sketcher.Constraint("DistanceY", 26, 3, -1, 1, Q("3.288015 mm")),
])
sketch4.setExpression("Constraints[204]", "Params.sketch4_radius")
sketch4.setExpression("Constraints[205]", "Params.sketch4_radius2")
pocket3 = body.newObject("PartDesign::Pocket", "Pocket002")
pocket3.Profile = sketch4
pocket3.setExpression("Length", "Params.pocket3_length")
pocket3.Reversed = True

doc.recompute()
